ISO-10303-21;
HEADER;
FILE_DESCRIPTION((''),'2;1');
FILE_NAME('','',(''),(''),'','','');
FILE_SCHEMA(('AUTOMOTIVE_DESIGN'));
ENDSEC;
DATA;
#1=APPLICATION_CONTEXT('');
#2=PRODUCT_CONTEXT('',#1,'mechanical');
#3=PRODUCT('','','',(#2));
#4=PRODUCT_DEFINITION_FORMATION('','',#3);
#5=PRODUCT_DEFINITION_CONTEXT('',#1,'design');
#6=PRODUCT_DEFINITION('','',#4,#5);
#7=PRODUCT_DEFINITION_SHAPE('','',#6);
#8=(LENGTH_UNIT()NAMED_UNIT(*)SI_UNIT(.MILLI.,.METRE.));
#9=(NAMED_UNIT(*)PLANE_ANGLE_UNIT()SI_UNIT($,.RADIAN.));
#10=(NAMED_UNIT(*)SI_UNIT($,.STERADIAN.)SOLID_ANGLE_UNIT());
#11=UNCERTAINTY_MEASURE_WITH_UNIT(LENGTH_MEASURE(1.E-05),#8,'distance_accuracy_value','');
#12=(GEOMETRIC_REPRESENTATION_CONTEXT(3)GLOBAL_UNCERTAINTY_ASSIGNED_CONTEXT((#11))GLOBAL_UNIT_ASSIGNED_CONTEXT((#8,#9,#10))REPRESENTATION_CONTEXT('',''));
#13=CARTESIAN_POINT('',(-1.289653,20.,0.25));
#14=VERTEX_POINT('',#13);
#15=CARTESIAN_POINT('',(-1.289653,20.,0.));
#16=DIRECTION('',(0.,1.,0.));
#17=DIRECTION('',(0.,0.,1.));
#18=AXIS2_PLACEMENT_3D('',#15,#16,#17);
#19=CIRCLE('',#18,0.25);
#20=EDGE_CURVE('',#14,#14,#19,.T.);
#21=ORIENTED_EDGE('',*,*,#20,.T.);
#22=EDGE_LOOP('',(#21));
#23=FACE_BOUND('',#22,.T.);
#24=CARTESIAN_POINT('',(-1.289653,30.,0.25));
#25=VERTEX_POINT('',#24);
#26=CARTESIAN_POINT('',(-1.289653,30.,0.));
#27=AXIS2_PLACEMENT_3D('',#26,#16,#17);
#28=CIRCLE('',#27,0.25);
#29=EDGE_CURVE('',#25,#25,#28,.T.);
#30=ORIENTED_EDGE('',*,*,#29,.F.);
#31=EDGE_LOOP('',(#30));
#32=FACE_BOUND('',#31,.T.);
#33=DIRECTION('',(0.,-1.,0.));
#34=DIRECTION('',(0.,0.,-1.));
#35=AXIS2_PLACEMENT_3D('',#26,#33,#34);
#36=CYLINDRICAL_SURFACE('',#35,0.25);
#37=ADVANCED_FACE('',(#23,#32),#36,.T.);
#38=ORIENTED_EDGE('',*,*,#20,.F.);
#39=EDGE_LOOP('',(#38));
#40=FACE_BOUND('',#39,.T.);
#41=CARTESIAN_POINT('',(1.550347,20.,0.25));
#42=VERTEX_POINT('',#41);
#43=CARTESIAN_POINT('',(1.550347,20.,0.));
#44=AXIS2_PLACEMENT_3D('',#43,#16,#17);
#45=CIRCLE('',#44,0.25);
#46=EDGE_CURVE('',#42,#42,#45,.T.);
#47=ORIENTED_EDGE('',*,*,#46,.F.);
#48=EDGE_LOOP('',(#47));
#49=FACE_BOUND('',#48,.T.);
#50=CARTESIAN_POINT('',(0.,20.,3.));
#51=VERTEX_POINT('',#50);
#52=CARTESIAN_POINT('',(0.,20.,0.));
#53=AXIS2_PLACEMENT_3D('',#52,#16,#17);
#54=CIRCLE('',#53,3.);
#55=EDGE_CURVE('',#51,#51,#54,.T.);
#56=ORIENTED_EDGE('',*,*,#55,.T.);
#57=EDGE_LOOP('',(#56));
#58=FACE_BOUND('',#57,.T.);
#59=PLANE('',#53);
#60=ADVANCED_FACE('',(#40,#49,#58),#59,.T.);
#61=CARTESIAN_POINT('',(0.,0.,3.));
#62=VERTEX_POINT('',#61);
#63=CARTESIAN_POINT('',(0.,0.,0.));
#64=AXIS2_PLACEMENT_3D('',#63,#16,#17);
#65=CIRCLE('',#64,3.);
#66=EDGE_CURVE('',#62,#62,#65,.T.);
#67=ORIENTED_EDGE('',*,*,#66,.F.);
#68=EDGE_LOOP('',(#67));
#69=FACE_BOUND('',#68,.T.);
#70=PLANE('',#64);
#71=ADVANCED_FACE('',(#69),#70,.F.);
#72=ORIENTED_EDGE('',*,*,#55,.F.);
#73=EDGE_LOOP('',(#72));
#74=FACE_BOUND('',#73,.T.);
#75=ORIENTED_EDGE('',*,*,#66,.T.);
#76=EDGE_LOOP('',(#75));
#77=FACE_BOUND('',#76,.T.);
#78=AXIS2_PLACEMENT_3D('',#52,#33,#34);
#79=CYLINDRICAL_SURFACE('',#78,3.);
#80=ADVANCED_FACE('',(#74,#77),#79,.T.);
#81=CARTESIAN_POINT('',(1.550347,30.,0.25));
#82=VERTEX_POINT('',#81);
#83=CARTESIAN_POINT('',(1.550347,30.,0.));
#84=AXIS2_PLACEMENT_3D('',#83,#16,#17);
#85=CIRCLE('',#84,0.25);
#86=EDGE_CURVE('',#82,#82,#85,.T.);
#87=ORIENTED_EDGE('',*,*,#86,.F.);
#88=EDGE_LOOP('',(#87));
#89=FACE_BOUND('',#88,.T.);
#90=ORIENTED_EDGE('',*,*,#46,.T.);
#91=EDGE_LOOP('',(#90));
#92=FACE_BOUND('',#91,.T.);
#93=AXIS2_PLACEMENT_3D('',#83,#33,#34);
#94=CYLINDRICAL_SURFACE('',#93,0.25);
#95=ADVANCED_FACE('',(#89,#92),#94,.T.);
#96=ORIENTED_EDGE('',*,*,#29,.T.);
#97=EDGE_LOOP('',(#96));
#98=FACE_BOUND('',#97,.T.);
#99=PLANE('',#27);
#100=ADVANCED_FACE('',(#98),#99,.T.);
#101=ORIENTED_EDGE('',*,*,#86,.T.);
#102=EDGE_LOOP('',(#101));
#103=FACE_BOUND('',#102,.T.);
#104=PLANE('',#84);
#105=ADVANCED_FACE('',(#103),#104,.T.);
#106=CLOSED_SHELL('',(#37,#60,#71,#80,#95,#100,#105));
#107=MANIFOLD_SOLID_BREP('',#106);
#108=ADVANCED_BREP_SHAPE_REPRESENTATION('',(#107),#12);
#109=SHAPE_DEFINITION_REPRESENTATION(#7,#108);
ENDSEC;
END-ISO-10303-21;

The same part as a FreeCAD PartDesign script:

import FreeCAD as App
import Part
import Sketcher

V = App.Vector

doc = App.newDocument("Part")
body = doc.addObject("PartDesign::Body", "Body")

sketch1 = body.newObject("Sketcher::SketchObject", "Sketch")
sketch1.AttachmentSupport = (doc.getObject("XZ_Plane"), [""])
sketch1.MapMode = "FlatFace"
sketch1.addGeometry(Part.Circle(V(0, 0, 0), V(0, 0, 1), 3), False)
sketch1.addConstraint([
    Sketcher.Constraint("Coincident", 0, 3, -1, 1),
    Sketcher.Constraint("Diameter", 0, 6.0),
])
pad1 = body.newObject("PartDesign::Pad", "Pad")
pad1.Profile = sketch1
pad1.Length = 20
pad1.Reversed = True

sketch2 = body.newObject("Sketcher::SketchObject", "Sketch001")
sketch2.AttachmentSupport = (doc.getObject("XZ_Plane"), [""])
sketch2.MapMode = "FlatFace"
sketch2.AttachmentOffset = App.Placement(V(0, 0, -20), App.Rotation())
sketch2.addGeometry([
    Part.Circle(V(-1.29, 0, 0), V(0, 0, 1), 0.25),
    Part.Circle(V(1.55, 0, 0), V(0, 0, 1), 0.25),
], False)
sketch2.addConstraint([
    Sketcher.Constraint("Equal", 0, 1),
    Sketcher.Constraint("PointOnObject", 0, 3, -1),
    Sketcher.Constraint("PointOnObject", 1, 3, -1),
    Sketcher.Constraint("Diameter", 0, 0.5),
    Sketcher.Constraint("DistanceX", 0, 3, 1, 3, 2.84),
    Sketcher.Constraint("DistanceX", 0, 3, -1, 1, 1.289653),
])
pad2 = body.newObject("PartDesign::Pad", "Pad001")
pad2.Profile = sketch2
pad2.Length = 10
pad2.Reversed = True

doc.recompute()
